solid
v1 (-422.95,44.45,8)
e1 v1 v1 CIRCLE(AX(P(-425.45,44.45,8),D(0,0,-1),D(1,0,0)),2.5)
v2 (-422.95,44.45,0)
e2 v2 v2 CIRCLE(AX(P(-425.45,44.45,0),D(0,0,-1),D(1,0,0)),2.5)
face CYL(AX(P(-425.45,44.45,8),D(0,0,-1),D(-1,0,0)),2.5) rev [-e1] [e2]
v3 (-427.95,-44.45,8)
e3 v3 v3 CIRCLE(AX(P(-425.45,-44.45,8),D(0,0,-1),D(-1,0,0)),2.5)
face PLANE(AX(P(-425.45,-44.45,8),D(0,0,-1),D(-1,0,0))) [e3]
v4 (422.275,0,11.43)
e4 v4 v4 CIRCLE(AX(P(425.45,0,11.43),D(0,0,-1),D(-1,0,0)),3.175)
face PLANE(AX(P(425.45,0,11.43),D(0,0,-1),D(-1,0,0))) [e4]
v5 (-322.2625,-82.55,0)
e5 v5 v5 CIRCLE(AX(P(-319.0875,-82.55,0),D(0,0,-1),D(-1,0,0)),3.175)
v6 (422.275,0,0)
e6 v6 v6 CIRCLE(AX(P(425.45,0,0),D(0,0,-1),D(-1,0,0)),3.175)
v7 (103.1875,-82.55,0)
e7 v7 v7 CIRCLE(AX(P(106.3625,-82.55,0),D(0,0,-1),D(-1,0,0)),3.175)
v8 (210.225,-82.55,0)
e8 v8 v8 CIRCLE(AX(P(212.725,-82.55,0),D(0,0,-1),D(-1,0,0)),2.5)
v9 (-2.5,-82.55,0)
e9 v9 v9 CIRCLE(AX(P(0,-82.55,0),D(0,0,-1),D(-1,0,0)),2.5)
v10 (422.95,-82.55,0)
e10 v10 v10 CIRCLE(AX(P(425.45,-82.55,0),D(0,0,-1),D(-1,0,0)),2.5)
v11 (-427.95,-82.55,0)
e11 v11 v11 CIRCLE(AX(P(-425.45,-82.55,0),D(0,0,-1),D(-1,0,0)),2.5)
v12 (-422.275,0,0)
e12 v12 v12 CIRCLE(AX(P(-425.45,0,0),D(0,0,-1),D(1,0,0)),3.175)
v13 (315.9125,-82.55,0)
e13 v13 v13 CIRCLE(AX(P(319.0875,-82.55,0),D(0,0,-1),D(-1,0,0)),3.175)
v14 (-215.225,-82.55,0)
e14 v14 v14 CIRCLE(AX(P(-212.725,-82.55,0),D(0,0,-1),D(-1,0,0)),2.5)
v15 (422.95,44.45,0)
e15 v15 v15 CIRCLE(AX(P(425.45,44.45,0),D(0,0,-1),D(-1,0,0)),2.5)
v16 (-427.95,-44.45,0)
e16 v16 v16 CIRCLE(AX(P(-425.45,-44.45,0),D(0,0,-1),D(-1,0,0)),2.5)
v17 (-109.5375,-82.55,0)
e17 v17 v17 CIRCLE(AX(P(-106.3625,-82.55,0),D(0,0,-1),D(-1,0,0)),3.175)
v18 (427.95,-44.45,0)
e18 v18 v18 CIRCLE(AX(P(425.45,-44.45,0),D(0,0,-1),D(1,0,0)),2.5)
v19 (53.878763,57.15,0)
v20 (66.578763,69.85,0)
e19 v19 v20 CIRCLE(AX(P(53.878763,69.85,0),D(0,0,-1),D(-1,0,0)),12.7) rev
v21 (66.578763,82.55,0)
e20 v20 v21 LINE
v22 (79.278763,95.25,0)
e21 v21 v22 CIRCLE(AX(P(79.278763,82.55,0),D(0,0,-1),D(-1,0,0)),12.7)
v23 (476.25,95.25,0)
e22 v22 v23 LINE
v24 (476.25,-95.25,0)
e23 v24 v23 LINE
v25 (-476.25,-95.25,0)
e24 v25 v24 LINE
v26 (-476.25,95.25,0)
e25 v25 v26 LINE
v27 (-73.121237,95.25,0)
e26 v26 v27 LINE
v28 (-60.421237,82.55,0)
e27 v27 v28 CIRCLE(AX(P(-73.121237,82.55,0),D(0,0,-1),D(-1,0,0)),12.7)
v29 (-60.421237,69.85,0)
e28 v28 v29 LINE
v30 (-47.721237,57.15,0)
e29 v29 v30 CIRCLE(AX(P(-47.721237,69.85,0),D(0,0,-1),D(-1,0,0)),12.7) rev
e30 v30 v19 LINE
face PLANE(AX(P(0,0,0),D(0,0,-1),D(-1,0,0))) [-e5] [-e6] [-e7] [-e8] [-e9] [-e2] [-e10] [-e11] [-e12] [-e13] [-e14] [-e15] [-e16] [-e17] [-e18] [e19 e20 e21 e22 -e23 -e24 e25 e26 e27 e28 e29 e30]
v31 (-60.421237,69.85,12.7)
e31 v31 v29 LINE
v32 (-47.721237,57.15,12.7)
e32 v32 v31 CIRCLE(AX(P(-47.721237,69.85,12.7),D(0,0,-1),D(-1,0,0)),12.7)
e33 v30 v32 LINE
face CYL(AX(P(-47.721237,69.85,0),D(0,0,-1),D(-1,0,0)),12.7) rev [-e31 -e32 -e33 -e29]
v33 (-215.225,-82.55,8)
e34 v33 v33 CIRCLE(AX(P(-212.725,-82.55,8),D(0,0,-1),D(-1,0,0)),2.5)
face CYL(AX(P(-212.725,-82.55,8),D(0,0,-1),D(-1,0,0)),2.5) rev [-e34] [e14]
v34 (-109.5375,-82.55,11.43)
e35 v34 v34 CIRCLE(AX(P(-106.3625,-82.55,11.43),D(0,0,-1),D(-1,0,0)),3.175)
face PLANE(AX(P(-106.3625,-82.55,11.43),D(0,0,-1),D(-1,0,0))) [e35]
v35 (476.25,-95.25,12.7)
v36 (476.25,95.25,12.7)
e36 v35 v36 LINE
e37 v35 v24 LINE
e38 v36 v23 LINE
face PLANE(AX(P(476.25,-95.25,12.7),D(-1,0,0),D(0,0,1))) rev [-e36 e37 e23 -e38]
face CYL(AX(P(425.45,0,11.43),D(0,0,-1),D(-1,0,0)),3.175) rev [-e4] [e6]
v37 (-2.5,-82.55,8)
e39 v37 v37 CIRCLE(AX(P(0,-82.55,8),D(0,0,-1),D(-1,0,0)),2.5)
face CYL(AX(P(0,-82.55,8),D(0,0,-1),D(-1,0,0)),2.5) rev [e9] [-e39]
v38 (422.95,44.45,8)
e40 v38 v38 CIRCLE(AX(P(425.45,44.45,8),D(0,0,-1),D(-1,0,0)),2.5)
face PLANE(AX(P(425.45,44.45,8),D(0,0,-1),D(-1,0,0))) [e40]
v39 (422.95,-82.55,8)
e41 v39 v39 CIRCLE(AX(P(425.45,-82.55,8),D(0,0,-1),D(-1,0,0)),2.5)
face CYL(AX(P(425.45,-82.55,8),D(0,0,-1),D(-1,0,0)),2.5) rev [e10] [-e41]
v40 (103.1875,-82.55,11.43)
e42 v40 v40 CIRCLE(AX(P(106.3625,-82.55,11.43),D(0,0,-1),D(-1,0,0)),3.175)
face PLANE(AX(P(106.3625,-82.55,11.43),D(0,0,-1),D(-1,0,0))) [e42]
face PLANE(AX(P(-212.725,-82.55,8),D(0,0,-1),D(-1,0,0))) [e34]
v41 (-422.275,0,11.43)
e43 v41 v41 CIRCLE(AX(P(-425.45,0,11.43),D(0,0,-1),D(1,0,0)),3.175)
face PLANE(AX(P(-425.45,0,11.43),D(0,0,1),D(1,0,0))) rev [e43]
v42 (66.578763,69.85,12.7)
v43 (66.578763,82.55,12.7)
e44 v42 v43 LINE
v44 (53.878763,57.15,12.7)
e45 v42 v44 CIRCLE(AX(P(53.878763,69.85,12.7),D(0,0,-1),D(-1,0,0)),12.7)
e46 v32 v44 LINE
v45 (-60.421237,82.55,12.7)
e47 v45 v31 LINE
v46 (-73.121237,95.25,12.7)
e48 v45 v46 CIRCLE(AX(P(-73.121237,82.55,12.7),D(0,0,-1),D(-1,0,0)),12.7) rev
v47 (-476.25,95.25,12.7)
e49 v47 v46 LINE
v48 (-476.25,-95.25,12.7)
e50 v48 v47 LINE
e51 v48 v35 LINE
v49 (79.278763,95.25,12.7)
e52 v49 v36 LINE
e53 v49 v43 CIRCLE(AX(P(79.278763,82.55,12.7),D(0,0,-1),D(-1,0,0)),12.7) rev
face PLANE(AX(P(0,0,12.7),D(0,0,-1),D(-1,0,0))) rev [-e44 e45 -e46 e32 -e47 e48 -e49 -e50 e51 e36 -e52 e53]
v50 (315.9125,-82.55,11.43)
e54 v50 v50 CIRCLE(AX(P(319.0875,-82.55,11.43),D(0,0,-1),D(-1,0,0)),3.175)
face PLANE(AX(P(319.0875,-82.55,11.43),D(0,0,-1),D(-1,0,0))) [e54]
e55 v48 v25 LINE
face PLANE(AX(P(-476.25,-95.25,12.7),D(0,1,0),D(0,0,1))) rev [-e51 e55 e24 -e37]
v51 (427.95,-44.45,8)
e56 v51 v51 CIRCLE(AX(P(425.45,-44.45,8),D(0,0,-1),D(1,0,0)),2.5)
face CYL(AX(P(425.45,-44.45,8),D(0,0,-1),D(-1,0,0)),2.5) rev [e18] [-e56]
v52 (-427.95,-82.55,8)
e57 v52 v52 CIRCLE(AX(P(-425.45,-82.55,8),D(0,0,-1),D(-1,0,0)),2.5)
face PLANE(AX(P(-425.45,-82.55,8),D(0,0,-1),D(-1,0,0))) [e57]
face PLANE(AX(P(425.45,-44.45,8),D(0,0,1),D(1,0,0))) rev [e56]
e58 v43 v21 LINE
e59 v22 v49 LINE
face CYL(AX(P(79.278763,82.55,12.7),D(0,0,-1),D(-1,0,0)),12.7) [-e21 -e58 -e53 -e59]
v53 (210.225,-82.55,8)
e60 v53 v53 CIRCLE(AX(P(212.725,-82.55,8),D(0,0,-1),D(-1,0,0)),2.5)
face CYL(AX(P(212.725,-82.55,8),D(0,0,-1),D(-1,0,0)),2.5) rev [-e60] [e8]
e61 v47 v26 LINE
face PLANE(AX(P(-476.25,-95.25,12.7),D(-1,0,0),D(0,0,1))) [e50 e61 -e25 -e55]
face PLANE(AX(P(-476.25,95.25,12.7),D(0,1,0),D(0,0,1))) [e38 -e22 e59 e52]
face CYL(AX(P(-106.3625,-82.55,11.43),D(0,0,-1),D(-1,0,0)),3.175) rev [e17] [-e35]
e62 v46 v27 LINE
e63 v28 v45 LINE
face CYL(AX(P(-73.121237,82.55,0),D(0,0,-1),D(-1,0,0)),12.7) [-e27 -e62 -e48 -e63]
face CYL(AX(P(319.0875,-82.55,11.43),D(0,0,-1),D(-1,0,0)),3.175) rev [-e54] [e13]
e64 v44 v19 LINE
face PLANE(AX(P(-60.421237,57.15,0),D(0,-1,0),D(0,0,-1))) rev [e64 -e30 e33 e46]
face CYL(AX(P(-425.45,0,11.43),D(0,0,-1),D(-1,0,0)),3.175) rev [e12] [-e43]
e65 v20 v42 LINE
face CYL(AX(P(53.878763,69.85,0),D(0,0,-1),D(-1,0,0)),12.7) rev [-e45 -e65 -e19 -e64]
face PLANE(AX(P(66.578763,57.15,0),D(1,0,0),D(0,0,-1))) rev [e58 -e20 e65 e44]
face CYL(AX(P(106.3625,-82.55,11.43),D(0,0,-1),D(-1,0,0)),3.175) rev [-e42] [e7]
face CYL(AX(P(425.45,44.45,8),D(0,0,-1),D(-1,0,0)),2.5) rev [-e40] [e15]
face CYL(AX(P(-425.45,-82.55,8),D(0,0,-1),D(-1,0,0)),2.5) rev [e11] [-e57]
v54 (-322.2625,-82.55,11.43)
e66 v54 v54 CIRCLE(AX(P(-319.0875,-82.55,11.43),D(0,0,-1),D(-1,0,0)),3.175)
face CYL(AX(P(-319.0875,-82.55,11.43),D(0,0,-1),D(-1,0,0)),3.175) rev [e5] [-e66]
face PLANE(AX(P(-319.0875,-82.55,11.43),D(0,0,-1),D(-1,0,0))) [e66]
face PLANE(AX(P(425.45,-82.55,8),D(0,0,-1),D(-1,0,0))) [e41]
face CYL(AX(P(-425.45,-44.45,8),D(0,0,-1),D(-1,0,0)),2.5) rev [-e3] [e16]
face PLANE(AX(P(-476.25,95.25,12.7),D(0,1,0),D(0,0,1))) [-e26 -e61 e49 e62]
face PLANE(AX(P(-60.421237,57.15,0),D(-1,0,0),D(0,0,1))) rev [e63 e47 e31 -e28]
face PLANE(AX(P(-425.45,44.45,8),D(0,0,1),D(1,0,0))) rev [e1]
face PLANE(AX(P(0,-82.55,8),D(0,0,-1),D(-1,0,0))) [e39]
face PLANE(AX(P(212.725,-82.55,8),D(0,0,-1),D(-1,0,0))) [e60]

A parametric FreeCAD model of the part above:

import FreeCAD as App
import Part
import Sketcher
Q = App.Units.Quantity


def edges_at(feature, points):
    """Names of the edges that pass closest to the given points."""
    edges = feature.Shape.Edges
    near = lambda p: min(range(len(edges)), key=lambda i: edges[i].distToShape(Part.Vertex(*p))[0])
    return sorted({f"Edge{near(p) + 1}" for p in points})

doc = App.newDocument("Part")
body = doc.addObject("PartDesign::Body", "Body")

# Sketch on XY plane
sketch1 = body.newObject("Sketcher::SketchObject", "Sketch")
sketch1.AttachmentSupport = (doc.getObject("XY_Plane"), [""])
sketch1.MapMode = "FlatFace"
sketch1.addGeometry([
    Part.LineSegment(App.Vector(-476, 95, 0), App.Vector(-476, -95, 0)),
    Part.LineSegment(App.Vector(-476, -95, 0), App.Vector(476, -95, 0)),
    Part.LineSegment(App.Vector(476, -95, 0), App.Vector(476, 95, 0)),
    Part.LineSegment(App.Vector(476, 95, 0), App.Vector(-476, 95, 0)),
], False)
sketch1.addConstraint([
    Sketcher.Constraint("Coincident", 0, 2, 1, 1),
    Sketcher.Constraint("Coincident", 1, 2, 2, 1),
    Sketcher.Constraint("Coincident", 2, 2, 3, 1),
    Sketcher.Constraint("Coincident", 3, 2, 0, 1),
    Sketcher.Constraint("Vertical", 0),
    Sketcher.Constraint("Horizontal", 1),
    Sketcher.Constraint("Vertical", 2),
    Sketcher.Constraint("Horizontal", 3),
    Sketcher.Constraint("Symmetric", 0, 2, 2, 2, -1, 1),
    Sketcher.Constraint("DistanceX", 1, 1, 1, 2, Q("37.5 in")),
    Sketcher.Constraint("DistanceY", 0, 2, 0, 1, Q("7.5 in")),
])
pad1 = body.newObject("PartDesign::Pad", "Pad")
pad1.Profile = sketch1
pad1.Length = Q("0.5 in")

# Sketch on XY plane
sketch2 = body.newObject("Sketcher::SketchObject", "Sketch001")
sketch2.AttachmentSupport = (doc.getObject("XY_Plane"), [""])
sketch2.MapMode = "FlatFace"
sketch2.AttachmentOffset = App.Placement(App.Vector(0, 0, 0.5 * 25.4), App.Rotation())
sketch2.addGeometry([
    Part.LineSegment(App.Vector(-60, 95, 0), App.Vector(-60, 57, 0)),
    Part.LineSegment(App.Vector(-60, 57, 0), App.Vector(67, 57, 0)),
    Part.LineSegment(App.Vector(67, 57, 0), App.Vector(67, 95, 0)),
    Part.LineSegment(App.Vector(67, 95, 0), App.Vector(-60, 95, 0)),
], False)
sketch2.addConstraint([
    Sketcher.Constraint("Coincident", 0, 2, 1, 1),
    Sketcher.Constraint("Coincident", 1, 2, 2, 1),
    Sketcher.Constraint("Coincident", 2, 2, 3, 1),
    Sketcher.Constraint("Coincident", 3, 2, 0, 1),
    Sketcher.Constraint("Vertical", 0),
    Sketcher.Constraint("Horizontal", 1),
    Sketcher.Constraint("Vertical", 2),
    Sketcher.Constraint("Horizontal", 3),
    Sketcher.Constraint("DistanceX", 1, 1, 1, 2, Q("5 in")),
    Sketcher.Constraint("DistanceY", 0, 2, 0, 1, Q("1.5 in")),
    Sketcher.Constraint("DistanceY", -1, 1, 0, 2, Q("2.25 in")),
    Sketcher.Constraint("DistanceX", 0, 2, -1, 1, Q("60.421237 mm")),
])
pocket1 = body.newObject("PartDesign::Pocket", "Pocket")
pocket1.Profile = sketch2
pocket1.Type = "ThroughAll"
doc.recompute()

fillet = body.newObject("PartDesign::Fillet", "Fillet")
fillet.Base = (pocket1, edges_at(pocket1, [
    (66.579, 95.25, 6.35),
    (66.579, 57.15, 6.35),
    (-60.421, 57.15, 6.35),
    (-60.421, 95.25, 6.35),
]))
fillet.Radius = Q("0.5 in")

# Sketch on XY plane
sketch3 = body.newObject("Sketcher::SketchObject", "Sketch002")
sketch3.AttachmentSupport = (doc.getObject("XY_Plane"), [""])
sketch3.MapMode = "FlatFace"
sketch3.addGeometry([
    Part.Circle(App.Vector(425.4, 0, 0), App.Vector(0, 0, 1), 3.2),
    Part.Circle(App.Vector(-425.4, 0, 0), App.Vector(0, 0, 1), 3.2),
], False)
sketch3.addConstraint([
    Sketcher.Constraint("Equal", 0, 1),
    Sketcher.Constraint("Symmetric", 0, 3, 1, 3, -1, 1),
    Sketcher.Constraint("PointOnObject", 0, 3, -1),
    Sketcher.Constraint("Diameter", 0, Q("0.25 in")),
    Sketcher.Constraint("DistanceX", 1, 3, 0, 3, Q("33.5 in")),
])
pocket2 = body.newObject("PartDesign::Pocket", "Pocket001")
pocket2.Profile = sketch3
pocket2.Length = Q("0.45 in")
pocket2.Reversed = True

# Sketch on XY plane
sketch4 = body.newObject("Sketcher::SketchObject", "Sketch003")
sketch4.AttachmentSupport = (doc.getObject("XY_Plane"), [""])
sketch4.MapMode = "FlatFace"
sketch4.addGeometry([
    Part.Circle(App.Vector(425.4, 44.5, 0), App.Vector(0, 0, 1), 2.5),
    Part.Circle(App.Vector(425.4, -44.5, 0), App.Vector(0, 0, 1), 2.5),
    Part.Circle(App.Vector(-425.4, -44.5, 0), App.Vector(0, 0, 1), 2.5),
    Part.Circle(App.Vector(-425.4, 44.5, 0), App.Vector(0, 0, 1), 2.5),
], False)
sketch4.addConstraint([
    Sketcher.Constraint("Equal", 0, 1),
    Sketcher.Constraint("Equal", 1, 2),
    Sketcher.Constraint("Equal", 2, 3),
    Sketcher.Constraint("Symmetric", 0, 3, 2, 3, -1, 1),
    Sketcher.Constraint("Symmetric", 1, 3, 3, 3, -1, 1),
    Sketcher.Constraint("Symmetric", 1, 3, 2, 3, -2),
    Sketcher.Constraint("DistanceY", 1, 3, 0, 3, Q("3.5 in")),
    Sketcher.Constraint("DistanceX", 2, 3, 1, 3, Q("33.5 in")),
    Sketcher.Constraint("Diameter", 0, Q("5 mm")),
])
pocket3 = body.newObject("PartDesign::Pocket", "Pocket002")
pocket3.Profile = sketch4
pocket3.Length = 8
pocket3.Reversed = True

# Sketch on XY plane
sketch5 = body.newObject("Sketcher::SketchObject", "Sketch004")
sketch5.AttachmentSupport = (doc.getObject("XY_Plane"), [""])
sketch5.MapMode = "FlatFace"
sketch5.addGeometry([
    Part.Circle(App.Vector(425.4, -82.5, 0), App.Vector(0, 0, 1), 2.5),  # 0
    Part.Circle(App.Vector(212.7, -82.5, 0), App.Vector(0, 0, 1), 2.5),  # 1
    Part.Circle(App.Vector(0, -82.5, 0), App.Vector(0, 0, 1), 2.5),  # 2
    Part.Circle(App.Vector(-212.7, -82.5, 0), App.Vector(0, 0, 1), 2.5),  # 3
    Part.Circle(App.Vector(-425.4, -82.5, 0), App.Vector(0, 0, 1), 2.5),  # 4
], False)
sketch5.addConstraint([
    Sketcher.Constraint("Equal", 0, 1),
    Sketcher.Constraint("Equal", 1, 2),
    Sketcher.Constraint("Equal", 2, 3),
    Sketcher.Constraint("Equal", 3, 4),
    Sketcher.Constraint("Symmetric", 1, 3, 3, 3, -2),
    Sketcher.Constraint("Symmetric", 0, 3, 4, 3, -2),
    Sketcher.Constraint("PointOnObject", 2, 3, -2),
    Sketcher.Constraint("Horizontal", 0, 3, 1, 3),
    Sketcher.Constraint("Horizontal", 1, 3, 2, 3),
    Sketcher.Constraint("DistanceX", 4, 3, 0, 3, Q("33.5 in")),
    Sketcher.Constraint("Diameter", 0, Q("5 mm")),
    Sketcher.Constraint("DistanceY", 0, 3, -1, 1, Q("3.25 in")),
    Sketcher.Constraint("DistanceX", 3, 3, 1, 3, Q("16.75 in")),
])
pocket4 = body.newObject("PartDesign::Pocket", "Pocket003")
pocket4.Profile = sketch5
pocket4.Length = 8
pocket4.Reversed = True

# Sketch on XY plane
sketch6 = body.newObject("Sketcher::SketchObject", "Sketch005")
sketch6.AttachmentSupport = (doc.getObject("XY_Plane"), [""])
sketch6.MapMode = "FlatFace"
sketch6.addGeometry([
    Part.Circle(App.Vector(319.1, -82.5, 0), App.Vector(0, 0, 1), 3.2),
    Part.Circle(App.Vector(106.4, -82.5, 0), App.Vector(0, 0, 1), 3.2),
    Part.Circle(App.Vector(-106.4, -82.5, 0), App.Vector(0, 0, 1), 3.2),
    Part.Circle(App.Vector(-319.1, -82.5, 0), App.Vector(0, 0, 1), 3.2),
], False)
sketch6.addConstraint([
    Sketcher.Constraint("Equal", 0, 1),
    Sketcher.Constraint("Equal", 1, 2),
    Sketcher.Constraint("Equal", 2, 3),
    Sketcher.Constraint("Symmetric", 1, 3, 2, 3, -2),
    Sketcher.Constraint("Symmetric", 0, 3, 3, 3, -2),
    Sketcher.Constraint("Horizontal", 0, 3, 1, 3),
    Sketcher.Constraint("Diameter", 0, Q("0.25 in")),
    Sketcher.Constraint("DistanceY", 0, 3, -1, 1, Q("3.25 in")),
    Sketcher.Constraint("DistanceX", 2, 3, 0, 3, Q("16.75 in")),
    Sketcher.Constraint("DistanceX", -1, 1, 0, 3, Q("12.5625 in")),
])
pocket5 = body.newObject("PartDesign::Pocket", "Pocket004")
pocket5.Profile = sketch6
pocket5.Length = Q("0.45 in")
pocket5.Reversed = True

doc.recompute()
